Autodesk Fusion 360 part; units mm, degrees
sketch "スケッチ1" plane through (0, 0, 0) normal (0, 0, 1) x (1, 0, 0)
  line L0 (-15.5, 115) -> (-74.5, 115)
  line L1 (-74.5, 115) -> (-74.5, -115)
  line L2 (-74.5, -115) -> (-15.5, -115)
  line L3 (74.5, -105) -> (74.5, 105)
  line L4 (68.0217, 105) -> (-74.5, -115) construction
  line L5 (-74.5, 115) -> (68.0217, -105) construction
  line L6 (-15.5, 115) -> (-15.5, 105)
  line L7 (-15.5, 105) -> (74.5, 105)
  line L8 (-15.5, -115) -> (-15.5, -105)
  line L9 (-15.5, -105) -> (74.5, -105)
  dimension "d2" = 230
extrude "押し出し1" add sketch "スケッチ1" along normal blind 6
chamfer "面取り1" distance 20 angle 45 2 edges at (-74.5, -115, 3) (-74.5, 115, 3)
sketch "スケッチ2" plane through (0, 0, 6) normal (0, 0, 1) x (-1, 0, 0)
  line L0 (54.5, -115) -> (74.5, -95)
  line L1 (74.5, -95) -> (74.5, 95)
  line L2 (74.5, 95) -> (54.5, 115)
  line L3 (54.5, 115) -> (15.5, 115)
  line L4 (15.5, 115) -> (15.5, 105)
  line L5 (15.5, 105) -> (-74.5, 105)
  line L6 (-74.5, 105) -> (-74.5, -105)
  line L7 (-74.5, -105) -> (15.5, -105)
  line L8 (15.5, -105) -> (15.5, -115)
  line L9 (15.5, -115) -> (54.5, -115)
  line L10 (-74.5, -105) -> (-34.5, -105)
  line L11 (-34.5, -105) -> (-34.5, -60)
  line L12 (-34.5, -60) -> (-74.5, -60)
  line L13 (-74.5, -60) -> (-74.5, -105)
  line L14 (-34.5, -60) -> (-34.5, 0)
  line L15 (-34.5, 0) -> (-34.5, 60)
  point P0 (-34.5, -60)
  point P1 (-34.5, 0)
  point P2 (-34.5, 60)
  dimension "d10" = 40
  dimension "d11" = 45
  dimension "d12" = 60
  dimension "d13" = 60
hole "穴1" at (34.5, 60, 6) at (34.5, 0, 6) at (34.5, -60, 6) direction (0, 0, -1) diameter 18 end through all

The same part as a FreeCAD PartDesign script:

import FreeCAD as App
import Part
import Sketcher
from FreeCAD import Vector


def edges_at(feature, points):
    """Names of the edges that pass closest to the given points."""
    edges = feature.Shape.Edges
    near = lambda p: min(range(len(edges)), key=lambda i: edges[i].distToShape(Part.Vertex(*p))[0])
    return sorted({f"Edge{near(p) + 1}" for p in points})

doc = App.newDocument("Part")
params = doc.addObject("Spreadsheet::Sheet", "Params")
for row, (alias, value) in enumerate([
    ("sketch1_height", "230 mm"),
    ("sketch1_width", "59 mm"),
    ("sketch1_width2", "90 mm"),
    ("sketch1_height2", "10 mm"),
    ("pad1_length", "6 mm"),
    ("chamfer_size", "20 mm"),
    ("sketch2_diameter", "18 mm"),
    ("hole_diameter", "18 mm"),
], start=1):
    params.set(f"A{row}", alias)
    params.set(f"B{row}", "=" + value)
    params.setAlias(f"B{row}", alias)

body = doc.addObject("PartDesign::Body", "Body")

# Sketch on XY plane
sketch1 = body.newObject("Sketcher::SketchObject", "Sketch")
sketch1.AttachmentSupport = (doc.getObject("XY_Plane"), [""])
sketch1.MapMode = "FlatFace"
sketch1.addGeometry(Part.LineSegment(Vector(-15.5, 105, 0), Vector(-15.5, 115, 0)), False)
sketch1.addGeometry(Part.LineSegment(Vector(-15.5, 115, 0), Vector(-74.5, 115, 0)), False)
sketch1.addGeometry(Part.LineSegment(Vector(-74.5, 115, 0), Vector(-74.5, -115, 0)), False)
sketch1.addGeometry(Part.LineSegment(Vector(-74.5, -115, 0), Vector(-15.5, -115, 0)), False)
sketch1.addGeometry(Part.LineSegment(Vector(-15.5, -115, 0), Vector(-15.5, -105, 0)), False)
sketch1.addGeometry(Part.LineSegment(Vector(-15.5, -105, 0), Vector(74.5, -105, 0)), False)
sketch1.addGeometry(Part.LineSegment(Vector(74.5, -105, 0), Vector(74.5, 105, 0)), False)
sketch1.addGeometry(Part.LineSegment(Vector(74.5, 105, 0), Vector(-15.5, 105, 0)), False)
sketch1.addConstraint(Sketcher.Constraint("Coincident", 0, 2, 1, 1))
sketch1.addConstraint(Sketcher.Constraint("Coincident", 1, 2, 2, 1))
sketch1.addConstraint(Sketcher.Constraint("Coincident", 2, 2, 3, 1))
sketch1.addConstraint(Sketcher.Constraint("Coincident", 3, 2, 4, 1))
sketch1.addConstraint(Sketcher.Constraint("Coincident", 4, 2, 5, 1))
sketch1.addConstraint(Sketcher.Constraint("Coincident", 5, 2, 6, 1))
sketch1.addConstraint(Sketcher.Constraint("Coincident", 6, 2, 7, 1))
sketch1.addConstraint(Sketcher.Constraint("Coincident", 7, 2, 0, 1))
sketch1.addConstraint(Sketcher.Constraint("Vertical", 0))
sketch1.addConstraint(Sketcher.Constraint("Horizontal", 1))
sketch1.addConstraint(Sketcher.Constraint("Vertical", 2))
sketch1.addConstraint(Sketcher.Constraint("Horizontal", 3))
sketch1.addConstraint(Sketcher.Constraint("Vertical", 4))
sketch1.addConstraint(Sketcher.Constraint("Horizontal", 5))
sketch1.addConstraint(Sketcher.Constraint("Vertical", 6))
sketch1.addConstraint(Sketcher.Constraint("Horizontal", 7))
sketch1.addConstraint(Sketcher.Constraint("Symmetric", 0, 2, 3, 2, -1))
sketch1.addConstraint(Sketcher.Constraint("Equal", 0, 4))
sketch1.addConstraint(Sketcher.Constraint("DistanceY", 2, 2, 2, 1, 230.0))
sketch1.addConstraint(Sketcher.Constraint("DistanceX", 1, 2, 1, 1, 59.0))
sketch1.addConstraint(Sketcher.Constraint("DistanceX", 5, 1, 5, 2, 90.0))
sketch1.addConstraint(Sketcher.Constraint("DistanceY", 0, 1, 0, 2, 10.0))
sketch1.addConstraint(Sketcher.Constraint("DistanceX", 0, 2, -1, 1, 15.5))
sketch1.setExpression("Constraints[18]", "Params.sketch1_height")
sketch1.setExpression("Constraints[19]", "Params.sketch1_width")
sketch1.setExpression("Constraints[20]", "Params.sketch1_width2")
sketch1.setExpression("Constraints[21]", "Params.sketch1_height2")
pad1 = body.newObject("PartDesign::Pad", "Pad")
pad1.Profile = sketch1
pad1.setExpression("Length", "Params.pad1_length")
doc.recompute()

chamfer = body.newObject("PartDesign::Chamfer", "Chamfer")
chamfer.Base = (pad1, edges_at(pad1, [(-74.5, -115, 3), (-74.5, 115, 3)]))
chamfer.setExpression("Size", "Params.chamfer_size")

# Sketch on XY plane
sketch2 = body.newObject("Sketcher::SketchObject", "Sketch001")
sketch2.AttachmentSupport = (doc.getObject("XY_Plane"), [""])
sketch2.MapMode = "FlatFace"
sketch2.AttachmentOffset = App.Placement(Vector(0, 0, 6), App.Rotation())
sketch2.addGeometry(Part.Circle(Vector(34.5, 60, 0), Vector(0, 0, 1), 9), False)
sketch2.addGeometry(Part.Circle(Vector(34.5, 0, 0), Vector(0, 0, 1), 9), False)
sketch2.addGeometry(Part.Circle(Vector(34.5, -60, 0), Vector(0, 0, 1), 9), False)
sketch2.addConstraint(Sketcher.Constraint("Equal", 0, 1))
sketch2.addConstraint(Sketcher.Constraint("Equal", 1, 2))
sketch2.addConstraint(Sketcher.Constraint("Symmetric", 0, 3, 2, 3, -1))
sketch2.addConstraint(Sketcher.Constraint("PointOnObject", 1, 3, -1))
sketch2.addConstraint(Sketcher.Constraint("Vertical", 0, 3, 1, 3))
sketch2.addConstraint(Sketcher.Constraint("Diameter", 0, 18.0))
sketch2.addConstraint(Sketcher.Constraint("DistanceY", -1, 1, 0, 3, 60.0))
sketch2.addConstraint(Sketcher.Constraint("DistanceX", -1, 1, 0, 3, 34.5))
sketch2.setExpression("Constraints[5]", "Params.sketch2_diameter")
doc.recompute()
hole = body.newObject("PartDesign::Hole", "Hole")
hole.Profile = sketch2
hole.ThreadType = "None"
hole.setExpression("Diameter", "Params.hole_diameter")
hole.DepthType = "ThroughAll"

doc.recompute()
